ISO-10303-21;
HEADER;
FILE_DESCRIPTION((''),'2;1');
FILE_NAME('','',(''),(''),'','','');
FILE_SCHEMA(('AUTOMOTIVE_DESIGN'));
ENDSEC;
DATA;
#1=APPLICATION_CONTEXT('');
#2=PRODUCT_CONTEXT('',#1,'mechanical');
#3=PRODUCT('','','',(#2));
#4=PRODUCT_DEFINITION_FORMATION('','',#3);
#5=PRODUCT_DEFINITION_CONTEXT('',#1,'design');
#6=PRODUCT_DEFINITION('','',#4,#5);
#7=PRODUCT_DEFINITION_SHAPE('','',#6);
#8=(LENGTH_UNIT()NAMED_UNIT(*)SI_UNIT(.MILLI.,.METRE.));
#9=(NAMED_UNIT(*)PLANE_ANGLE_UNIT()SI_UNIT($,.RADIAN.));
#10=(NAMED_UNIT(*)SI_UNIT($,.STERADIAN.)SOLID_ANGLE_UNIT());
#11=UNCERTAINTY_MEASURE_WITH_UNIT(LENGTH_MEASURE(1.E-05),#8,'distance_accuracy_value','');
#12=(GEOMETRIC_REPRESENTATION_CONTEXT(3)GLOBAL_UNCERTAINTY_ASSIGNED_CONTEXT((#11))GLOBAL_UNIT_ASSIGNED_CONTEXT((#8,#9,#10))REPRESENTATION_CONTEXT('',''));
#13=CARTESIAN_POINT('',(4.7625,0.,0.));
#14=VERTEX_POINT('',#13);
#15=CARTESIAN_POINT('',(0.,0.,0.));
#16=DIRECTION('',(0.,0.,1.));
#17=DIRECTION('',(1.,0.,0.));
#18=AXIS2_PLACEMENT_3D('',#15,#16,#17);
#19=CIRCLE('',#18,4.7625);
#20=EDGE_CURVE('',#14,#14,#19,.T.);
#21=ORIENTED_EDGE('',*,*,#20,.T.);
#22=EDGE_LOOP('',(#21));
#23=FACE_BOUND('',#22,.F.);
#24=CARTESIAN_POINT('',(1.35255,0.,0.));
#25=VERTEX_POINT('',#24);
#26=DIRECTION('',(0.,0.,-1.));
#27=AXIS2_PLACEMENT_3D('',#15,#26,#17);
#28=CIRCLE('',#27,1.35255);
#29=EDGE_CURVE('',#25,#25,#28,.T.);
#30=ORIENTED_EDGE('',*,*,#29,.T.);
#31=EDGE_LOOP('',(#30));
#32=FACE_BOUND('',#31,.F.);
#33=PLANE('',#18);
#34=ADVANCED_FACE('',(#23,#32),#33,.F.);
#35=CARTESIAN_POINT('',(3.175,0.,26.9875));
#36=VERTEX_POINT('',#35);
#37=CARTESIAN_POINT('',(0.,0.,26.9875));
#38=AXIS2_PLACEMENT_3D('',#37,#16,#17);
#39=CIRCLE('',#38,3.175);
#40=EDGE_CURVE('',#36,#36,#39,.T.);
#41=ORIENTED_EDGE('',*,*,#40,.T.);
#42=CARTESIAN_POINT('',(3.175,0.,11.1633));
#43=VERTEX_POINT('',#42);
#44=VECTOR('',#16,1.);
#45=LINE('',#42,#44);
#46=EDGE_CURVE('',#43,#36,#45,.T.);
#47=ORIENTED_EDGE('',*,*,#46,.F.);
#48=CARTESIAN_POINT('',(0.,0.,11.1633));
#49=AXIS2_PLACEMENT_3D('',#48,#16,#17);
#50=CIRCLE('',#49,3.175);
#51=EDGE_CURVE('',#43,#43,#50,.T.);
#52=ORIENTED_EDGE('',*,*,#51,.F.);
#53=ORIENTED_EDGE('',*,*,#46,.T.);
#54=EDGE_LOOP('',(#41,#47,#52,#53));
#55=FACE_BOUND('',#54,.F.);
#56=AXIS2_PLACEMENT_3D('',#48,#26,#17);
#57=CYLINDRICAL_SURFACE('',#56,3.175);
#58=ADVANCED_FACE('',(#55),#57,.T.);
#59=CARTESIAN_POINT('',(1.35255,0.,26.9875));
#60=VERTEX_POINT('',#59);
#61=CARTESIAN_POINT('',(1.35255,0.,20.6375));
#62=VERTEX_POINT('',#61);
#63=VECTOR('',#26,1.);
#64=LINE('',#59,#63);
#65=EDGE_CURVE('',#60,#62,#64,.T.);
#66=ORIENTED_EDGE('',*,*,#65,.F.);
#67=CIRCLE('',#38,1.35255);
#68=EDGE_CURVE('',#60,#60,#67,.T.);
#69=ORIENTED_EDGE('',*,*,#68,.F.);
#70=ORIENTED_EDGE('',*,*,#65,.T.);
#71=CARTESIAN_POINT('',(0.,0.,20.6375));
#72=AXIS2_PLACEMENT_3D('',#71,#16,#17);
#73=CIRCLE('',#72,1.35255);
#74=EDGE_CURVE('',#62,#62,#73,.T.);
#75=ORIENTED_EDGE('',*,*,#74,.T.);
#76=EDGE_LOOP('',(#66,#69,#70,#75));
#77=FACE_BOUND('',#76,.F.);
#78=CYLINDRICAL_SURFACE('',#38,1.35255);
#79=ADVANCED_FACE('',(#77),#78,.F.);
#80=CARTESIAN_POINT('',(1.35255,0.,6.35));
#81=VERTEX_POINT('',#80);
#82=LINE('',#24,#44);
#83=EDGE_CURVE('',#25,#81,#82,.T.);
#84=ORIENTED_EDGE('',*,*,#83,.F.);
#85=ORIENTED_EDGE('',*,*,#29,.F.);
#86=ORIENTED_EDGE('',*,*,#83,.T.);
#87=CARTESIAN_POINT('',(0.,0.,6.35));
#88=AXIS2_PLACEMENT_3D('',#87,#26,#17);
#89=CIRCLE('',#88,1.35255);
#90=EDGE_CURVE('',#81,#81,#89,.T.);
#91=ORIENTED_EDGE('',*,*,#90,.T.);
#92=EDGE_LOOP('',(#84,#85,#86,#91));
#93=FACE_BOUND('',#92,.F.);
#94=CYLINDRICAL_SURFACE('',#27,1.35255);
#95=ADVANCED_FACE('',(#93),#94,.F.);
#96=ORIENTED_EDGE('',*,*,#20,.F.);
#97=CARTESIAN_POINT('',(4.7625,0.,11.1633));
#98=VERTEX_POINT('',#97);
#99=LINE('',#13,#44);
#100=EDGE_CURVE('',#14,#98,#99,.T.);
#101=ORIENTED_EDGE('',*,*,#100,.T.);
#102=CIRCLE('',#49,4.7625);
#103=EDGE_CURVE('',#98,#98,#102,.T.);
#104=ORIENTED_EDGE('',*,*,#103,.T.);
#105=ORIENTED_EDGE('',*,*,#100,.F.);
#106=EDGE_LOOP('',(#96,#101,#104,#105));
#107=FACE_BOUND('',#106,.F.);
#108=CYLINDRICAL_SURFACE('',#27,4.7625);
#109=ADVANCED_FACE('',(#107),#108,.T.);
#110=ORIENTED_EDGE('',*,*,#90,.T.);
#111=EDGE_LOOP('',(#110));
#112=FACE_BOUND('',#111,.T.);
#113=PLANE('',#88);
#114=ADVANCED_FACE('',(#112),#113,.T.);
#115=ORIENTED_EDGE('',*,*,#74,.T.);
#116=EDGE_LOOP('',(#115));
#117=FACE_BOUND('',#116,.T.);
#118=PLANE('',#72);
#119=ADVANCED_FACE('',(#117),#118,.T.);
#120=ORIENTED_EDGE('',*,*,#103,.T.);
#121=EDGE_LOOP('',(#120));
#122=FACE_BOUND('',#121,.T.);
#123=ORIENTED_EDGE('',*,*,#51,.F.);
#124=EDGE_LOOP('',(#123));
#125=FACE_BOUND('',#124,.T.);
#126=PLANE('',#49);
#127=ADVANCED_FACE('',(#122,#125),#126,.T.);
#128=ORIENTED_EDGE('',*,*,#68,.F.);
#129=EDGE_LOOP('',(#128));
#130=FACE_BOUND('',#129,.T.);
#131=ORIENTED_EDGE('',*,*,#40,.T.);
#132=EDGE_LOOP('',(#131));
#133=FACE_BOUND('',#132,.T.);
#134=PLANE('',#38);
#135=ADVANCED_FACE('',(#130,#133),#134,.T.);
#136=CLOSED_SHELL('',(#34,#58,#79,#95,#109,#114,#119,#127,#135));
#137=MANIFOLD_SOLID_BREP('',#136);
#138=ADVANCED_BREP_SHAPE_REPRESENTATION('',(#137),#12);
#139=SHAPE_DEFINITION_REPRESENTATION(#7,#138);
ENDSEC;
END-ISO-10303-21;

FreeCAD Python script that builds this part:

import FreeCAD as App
import Part
import Sketcher

V = App.Vector
Q = App.Units.Quantity

doc = App.newDocument("Part")
body = doc.addObject("PartDesign::Body", "Body")

sketch1 = body.newObject("Sketcher::SketchObject", "Sketch")
sketch1.AttachmentSupport = (doc.getObject("XY_Plane"), [""])
sketch1.MapMode = "FlatFace"
sketch1.addGeometry(Part.Circle(V(0, 0, 0), V(0, 0, 1), 4.8), False)
sketch1.addConstraint([
    Sketcher.Constraint("Coincident", 0, 3, -1, 1),
    Sketcher.Constraint("Diameter", 0, Q("0.375 in")),
])
pad1 = body.newObject("PartDesign::Pad", "Pad")
pad1.Profile = sketch1
pad1.Length = Q("0.4395 in")

sketch2 = body.newObject("Sketcher::SketchObject", "Sketch001")
sketch2.AttachmentSupport = (doc.getObject("XY_Plane"), [""])
sketch2.MapMode = "FlatFace"
sketch2.AttachmentOffset = App.Placement(V(0, 0, 0.4395 * 25.4), App.Rotation())
sketch2.addGeometry(Part.Circle(V(0, 0, 0), V(0, 0, 1), 3.2), False)
sketch2.addConstraint([
    Sketcher.Constraint("Coincident", 0, 3, -1, 1),
    Sketcher.Constraint("Diameter", 0, Q("0.25 in")),
])
pad2 = body.newObject("PartDesign::Pad", "Pad001")
pad2.Profile = sketch2
pad2.Length = Q("0.623 in")

sketch3 = body.newObject("Sketcher::SketchObject", "Sketch002")
sketch3.AttachmentSupport = (doc.getObject("XY_Plane"), [""])
sketch3.MapMode = "FlatFace"
sketch3.addGeometry(Part.Circle(V(0, 0, 0), V(0, 0, 1), 1.4), False)
sketch3.addConstraint([
    Sketcher.Constraint("Coincident", 0, 3, -1, 1),
    Sketcher.Constraint("Diameter", 0, Q("0.1065 in")),
])
pocket1 = body.newObject("PartDesign::Pocket", "Pocket")
pocket1.Profile = sketch3
pocket1.Length = Q("0.25 in")
pocket1.Reversed = True

sketch4 = body.newObject("Sketcher::SketchObject", "Sketch003")
sketch4.AttachmentSupport = (doc.getObject("XY_Plane"), [""])
sketch4.MapMode = "FlatFace"
sketch4.AttachmentOffset = App.Placement(V(0, 0, 1.0625 * 25.4), App.Rotation())
sketch4.addGeometry(Part.Circle(V(0, 0, 0), V(0, 0, 1), 1.4), False)
sketch4.addConstraint([
    Sketcher.Constraint("Coincident", 0, 3, -1, 1),
    Sketcher.Constraint("Diameter", 0, Q("0.1065 in")),
])
pocket2 = body.newObject("PartDesign::Pocket", "Pocket001")
pocket2.Profile = sketch4
pocket2.Length = Q("0.25 in")

doc.recompute()
